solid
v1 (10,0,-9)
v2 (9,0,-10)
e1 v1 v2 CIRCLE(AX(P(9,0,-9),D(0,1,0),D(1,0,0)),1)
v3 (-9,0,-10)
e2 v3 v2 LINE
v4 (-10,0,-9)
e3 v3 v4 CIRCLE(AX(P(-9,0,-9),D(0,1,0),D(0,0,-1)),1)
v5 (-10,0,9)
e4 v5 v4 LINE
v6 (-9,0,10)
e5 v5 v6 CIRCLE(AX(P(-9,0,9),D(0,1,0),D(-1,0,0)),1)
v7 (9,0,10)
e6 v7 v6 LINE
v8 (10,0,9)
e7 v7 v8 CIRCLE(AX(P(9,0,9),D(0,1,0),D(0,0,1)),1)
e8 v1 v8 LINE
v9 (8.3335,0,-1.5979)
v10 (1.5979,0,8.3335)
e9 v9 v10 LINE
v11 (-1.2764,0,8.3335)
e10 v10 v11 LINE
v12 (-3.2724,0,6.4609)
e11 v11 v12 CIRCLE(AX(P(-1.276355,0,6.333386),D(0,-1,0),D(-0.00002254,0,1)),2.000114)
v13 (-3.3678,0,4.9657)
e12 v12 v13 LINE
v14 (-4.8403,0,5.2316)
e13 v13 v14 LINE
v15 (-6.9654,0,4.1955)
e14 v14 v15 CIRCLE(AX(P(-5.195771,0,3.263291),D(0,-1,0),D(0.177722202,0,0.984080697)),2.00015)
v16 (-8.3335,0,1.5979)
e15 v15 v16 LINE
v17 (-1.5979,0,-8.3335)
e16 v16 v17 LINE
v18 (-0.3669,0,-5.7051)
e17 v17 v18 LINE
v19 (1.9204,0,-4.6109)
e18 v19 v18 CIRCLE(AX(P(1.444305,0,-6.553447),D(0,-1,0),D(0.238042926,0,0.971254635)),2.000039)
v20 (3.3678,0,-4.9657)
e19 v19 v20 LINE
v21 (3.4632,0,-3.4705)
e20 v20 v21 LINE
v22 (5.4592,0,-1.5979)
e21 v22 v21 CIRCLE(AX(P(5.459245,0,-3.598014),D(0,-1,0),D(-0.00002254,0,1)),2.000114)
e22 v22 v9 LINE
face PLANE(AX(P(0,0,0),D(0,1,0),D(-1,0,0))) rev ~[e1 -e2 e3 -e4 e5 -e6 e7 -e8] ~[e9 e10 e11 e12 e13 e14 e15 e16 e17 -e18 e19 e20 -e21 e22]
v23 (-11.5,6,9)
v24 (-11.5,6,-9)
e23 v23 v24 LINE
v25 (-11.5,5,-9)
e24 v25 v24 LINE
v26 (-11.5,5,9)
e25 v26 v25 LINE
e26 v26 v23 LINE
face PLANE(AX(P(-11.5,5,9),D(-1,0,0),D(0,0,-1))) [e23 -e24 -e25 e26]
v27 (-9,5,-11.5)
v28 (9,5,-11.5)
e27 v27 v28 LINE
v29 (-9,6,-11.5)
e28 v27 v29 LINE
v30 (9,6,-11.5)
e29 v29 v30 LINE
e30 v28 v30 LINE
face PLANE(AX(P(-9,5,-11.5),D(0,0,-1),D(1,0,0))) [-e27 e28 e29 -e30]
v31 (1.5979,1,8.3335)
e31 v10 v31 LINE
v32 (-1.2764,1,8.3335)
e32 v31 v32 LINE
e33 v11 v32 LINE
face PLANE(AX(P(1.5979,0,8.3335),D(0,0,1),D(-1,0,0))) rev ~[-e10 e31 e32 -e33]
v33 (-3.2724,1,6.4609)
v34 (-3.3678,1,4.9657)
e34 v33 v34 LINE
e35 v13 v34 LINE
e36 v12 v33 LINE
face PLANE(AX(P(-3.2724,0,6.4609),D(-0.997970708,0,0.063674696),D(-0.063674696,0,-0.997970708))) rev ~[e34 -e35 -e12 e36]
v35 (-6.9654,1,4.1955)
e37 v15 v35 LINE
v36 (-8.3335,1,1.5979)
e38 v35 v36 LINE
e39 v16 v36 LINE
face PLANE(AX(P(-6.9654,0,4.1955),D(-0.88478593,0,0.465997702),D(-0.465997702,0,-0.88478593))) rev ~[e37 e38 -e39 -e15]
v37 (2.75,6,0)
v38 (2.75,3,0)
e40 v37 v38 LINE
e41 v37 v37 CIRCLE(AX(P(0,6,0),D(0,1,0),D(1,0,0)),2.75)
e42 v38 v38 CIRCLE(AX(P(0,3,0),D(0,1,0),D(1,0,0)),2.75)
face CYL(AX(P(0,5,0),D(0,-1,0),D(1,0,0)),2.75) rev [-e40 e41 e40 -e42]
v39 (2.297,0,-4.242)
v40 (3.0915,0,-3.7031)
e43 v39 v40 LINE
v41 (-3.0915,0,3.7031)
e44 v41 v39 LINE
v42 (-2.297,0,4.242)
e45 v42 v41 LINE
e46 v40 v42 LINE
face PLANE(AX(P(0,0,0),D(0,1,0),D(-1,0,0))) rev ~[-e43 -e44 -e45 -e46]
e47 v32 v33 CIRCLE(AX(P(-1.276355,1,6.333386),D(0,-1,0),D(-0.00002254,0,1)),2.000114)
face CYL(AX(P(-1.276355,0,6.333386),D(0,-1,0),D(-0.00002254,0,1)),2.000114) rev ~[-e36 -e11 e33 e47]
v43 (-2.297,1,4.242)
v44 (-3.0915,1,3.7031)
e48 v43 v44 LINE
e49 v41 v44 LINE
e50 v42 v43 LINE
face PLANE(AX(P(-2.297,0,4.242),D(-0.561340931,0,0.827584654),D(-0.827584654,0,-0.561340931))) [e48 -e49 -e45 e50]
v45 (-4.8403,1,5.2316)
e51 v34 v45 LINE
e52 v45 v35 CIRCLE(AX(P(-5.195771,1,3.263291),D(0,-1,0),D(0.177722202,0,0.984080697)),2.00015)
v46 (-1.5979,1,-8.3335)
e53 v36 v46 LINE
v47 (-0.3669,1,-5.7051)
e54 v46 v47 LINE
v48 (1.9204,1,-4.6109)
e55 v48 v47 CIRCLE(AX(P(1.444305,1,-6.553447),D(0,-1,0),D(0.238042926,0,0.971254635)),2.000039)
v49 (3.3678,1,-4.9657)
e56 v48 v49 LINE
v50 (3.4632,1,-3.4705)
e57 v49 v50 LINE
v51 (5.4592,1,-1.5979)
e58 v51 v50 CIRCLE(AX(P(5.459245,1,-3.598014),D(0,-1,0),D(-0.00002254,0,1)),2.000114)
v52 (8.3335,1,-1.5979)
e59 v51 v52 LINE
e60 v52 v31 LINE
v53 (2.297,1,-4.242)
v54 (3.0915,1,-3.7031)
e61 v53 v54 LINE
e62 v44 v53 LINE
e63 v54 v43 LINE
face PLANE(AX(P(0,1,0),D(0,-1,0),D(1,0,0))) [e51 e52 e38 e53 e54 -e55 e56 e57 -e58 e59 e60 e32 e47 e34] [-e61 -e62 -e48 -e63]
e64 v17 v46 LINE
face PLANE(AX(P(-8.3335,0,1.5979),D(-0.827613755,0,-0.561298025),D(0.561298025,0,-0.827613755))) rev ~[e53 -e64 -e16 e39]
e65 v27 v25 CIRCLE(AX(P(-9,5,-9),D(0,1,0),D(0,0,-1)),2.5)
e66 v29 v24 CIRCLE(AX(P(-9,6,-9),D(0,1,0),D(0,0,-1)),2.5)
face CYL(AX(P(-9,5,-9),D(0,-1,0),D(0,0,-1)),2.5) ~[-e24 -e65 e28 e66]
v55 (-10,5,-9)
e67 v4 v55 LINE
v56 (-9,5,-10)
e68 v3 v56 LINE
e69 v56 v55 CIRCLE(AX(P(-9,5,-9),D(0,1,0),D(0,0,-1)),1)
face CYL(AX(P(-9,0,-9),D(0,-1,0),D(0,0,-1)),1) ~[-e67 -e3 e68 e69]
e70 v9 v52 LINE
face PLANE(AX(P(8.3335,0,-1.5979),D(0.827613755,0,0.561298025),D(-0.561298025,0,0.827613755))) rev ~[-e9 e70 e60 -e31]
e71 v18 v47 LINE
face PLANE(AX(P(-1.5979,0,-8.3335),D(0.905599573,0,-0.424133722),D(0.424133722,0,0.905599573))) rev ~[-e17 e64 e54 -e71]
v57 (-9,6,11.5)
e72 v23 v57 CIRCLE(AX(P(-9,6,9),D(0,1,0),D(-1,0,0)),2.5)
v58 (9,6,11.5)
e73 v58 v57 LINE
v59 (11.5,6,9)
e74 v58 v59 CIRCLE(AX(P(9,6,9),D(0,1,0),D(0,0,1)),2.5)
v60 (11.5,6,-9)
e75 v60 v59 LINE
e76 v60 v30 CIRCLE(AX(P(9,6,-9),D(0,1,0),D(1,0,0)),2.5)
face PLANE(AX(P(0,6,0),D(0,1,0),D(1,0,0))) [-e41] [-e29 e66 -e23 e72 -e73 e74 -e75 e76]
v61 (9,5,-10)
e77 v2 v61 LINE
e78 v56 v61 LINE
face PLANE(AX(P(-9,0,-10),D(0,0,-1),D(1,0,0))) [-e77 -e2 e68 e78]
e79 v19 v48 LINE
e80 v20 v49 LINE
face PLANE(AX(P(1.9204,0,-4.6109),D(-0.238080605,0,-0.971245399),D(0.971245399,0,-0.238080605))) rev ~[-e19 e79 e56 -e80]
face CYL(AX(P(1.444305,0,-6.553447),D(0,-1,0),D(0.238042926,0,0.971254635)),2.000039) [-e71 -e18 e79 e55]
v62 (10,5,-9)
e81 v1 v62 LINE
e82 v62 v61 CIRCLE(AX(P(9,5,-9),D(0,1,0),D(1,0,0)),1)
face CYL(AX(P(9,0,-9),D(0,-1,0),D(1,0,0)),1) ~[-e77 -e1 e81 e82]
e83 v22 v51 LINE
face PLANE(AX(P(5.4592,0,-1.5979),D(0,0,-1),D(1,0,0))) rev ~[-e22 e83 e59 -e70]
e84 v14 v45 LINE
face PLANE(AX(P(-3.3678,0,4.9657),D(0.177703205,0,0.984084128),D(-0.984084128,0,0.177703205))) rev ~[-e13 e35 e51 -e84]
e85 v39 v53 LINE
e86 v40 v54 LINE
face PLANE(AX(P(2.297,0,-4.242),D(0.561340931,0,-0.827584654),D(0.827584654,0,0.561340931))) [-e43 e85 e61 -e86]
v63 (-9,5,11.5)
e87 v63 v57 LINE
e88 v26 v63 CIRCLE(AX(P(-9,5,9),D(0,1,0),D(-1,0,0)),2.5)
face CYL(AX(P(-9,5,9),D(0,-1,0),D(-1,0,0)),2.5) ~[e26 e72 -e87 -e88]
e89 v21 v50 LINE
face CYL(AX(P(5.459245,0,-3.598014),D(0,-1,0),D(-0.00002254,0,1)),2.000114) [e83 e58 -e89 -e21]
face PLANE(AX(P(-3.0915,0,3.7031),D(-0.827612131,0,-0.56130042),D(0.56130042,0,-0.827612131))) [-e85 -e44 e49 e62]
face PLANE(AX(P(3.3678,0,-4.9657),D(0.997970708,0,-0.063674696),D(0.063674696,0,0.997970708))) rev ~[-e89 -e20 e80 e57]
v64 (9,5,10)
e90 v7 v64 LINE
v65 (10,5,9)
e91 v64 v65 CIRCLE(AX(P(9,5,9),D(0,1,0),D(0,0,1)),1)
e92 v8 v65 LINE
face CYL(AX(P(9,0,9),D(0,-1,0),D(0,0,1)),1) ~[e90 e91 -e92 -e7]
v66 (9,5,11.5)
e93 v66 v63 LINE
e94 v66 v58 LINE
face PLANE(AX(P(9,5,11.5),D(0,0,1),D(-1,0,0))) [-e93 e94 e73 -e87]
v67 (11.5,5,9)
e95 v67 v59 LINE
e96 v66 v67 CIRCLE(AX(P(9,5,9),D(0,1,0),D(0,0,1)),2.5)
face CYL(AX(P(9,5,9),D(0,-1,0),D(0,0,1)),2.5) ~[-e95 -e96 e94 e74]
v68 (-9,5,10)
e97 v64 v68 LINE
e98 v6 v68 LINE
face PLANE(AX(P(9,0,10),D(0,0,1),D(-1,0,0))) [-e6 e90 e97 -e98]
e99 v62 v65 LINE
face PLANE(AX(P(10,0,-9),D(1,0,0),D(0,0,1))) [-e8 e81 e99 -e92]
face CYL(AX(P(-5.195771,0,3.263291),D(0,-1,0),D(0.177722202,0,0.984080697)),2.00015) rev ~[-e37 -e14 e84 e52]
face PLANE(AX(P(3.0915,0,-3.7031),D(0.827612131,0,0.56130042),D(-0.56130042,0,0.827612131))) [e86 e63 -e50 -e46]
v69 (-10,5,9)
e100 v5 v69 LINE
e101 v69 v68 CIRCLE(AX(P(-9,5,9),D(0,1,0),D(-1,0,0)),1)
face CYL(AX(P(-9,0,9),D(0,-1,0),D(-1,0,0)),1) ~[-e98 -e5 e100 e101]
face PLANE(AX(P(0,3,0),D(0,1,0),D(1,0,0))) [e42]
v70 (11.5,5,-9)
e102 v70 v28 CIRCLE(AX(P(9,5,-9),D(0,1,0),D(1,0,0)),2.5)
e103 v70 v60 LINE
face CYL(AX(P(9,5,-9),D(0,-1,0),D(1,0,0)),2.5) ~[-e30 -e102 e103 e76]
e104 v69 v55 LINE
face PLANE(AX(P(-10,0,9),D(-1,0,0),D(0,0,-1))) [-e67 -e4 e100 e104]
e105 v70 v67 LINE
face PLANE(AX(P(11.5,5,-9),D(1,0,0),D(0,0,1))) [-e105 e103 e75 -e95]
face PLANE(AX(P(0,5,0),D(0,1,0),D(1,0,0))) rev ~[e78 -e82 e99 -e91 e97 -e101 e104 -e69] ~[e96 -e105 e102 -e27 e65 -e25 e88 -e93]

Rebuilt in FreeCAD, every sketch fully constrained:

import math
import FreeCAD as App
import Part
import Sketcher
Q = App.Units.Quantity

doc = App.newDocument("Part")
body = doc.addObject("PartDesign::Body", "Body")

sketch1 = body.newObject("Sketcher::SketchObject", "Sketch")
sketch1.AttachmentSupport = (doc.getObject("XZ_Plane"), [""])
sketch1.MapMode = "FlatFace"
sketch1.addGeometry(Part.LineSegment(App.Vector(9, -10, 0), App.Vector(-9, -10, 0)), False)
sketch1.addGeometry(Part.ArcOfCircle(Part.Circle(App.Vector(-9, -9, 0), App.Vector(0, 0, 1), 1), math.radians(180), math.radians(270)), False)
sketch1.addGeometry(Part.LineSegment(App.Vector(-10, -9, 0), App.Vector(-10, 9, 0)), False)
sketch1.addGeometry(Part.ArcOfCircle(Part.Circle(App.Vector(-9, 9, 0), App.Vector(0, 0, 1), 1), math.radians(90), math.radians(180)), False)
sketch1.addGeometry(Part.LineSegment(App.Vector(-9, 10, 0), App.Vector(9, 10, 0)), False)
sketch1.addGeometry(Part.ArcOfCircle(Part.Circle(App.Vector(9, 9, 0), App.Vector(0, 0, 1), 1), math.radians(0), math.radians(90)), False)
sketch1.addGeometry(Part.LineSegment(App.Vector(10, 9, 0), App.Vector(10, -9, 0)), False)
sketch1.addGeometry(Part.ArcOfCircle(Part.Circle(App.Vector(9, -9, 0), App.Vector(0, 0, 1), 1), math.radians(-90), math.radians(0)), False)
sketch1.addConstraint(Sketcher.Constraint("Tangent", 0, 2, 1, 2))
sketch1.addConstraint(Sketcher.Constraint("Tangent", 1, 1, 2, 1))
sketch1.addConstraint(Sketcher.Constraint("Tangent", 2, 2, 3, 2))
sketch1.addConstraint(Sketcher.Constraint("Tangent", 3, 1, 4, 1))
sketch1.addConstraint(Sketcher.Constraint("Tangent", 4, 2, 5, 2))
sketch1.addConstraint(Sketcher.Constraint("Tangent", 5, 1, 6, 1))
sketch1.addConstraint(Sketcher.Constraint("Tangent", 6, 2, 7, 2))
sketch1.addConstraint(Sketcher.Constraint("Tangent", 7, 1, 0, 1))
sketch1.addConstraint(Sketcher.Constraint("Horizontal", 0))
sketch1.addConstraint(Sketcher.Constraint("Vertical", 2))
sketch1.addConstraint(Sketcher.Constraint("Horizontal", 4))
sketch1.addConstraint(Sketcher.Constraint("Vertical", 6))
sketch1.addConstraint(Sketcher.Constraint("Equal", 1, 3))
sketch1.addConstraint(Sketcher.Constraint("Equal", 3, 5))
sketch1.addConstraint(Sketcher.Constraint("Equal", 5, 7))
sketch1.addConstraint(Sketcher.Constraint("Symmetric", 1, 3, 5, 3, -1, 1))
sketch1.addConstraint(Sketcher.Constraint("Equal", 4, 2))
sketch1.addConstraint(Sketcher.Constraint("Radius", 1, Q("1 mm")))
sketch1.addConstraint(Sketcher.Constraint("DistanceX", 0, 2, 0, 1, Q("18 mm")))
pad1 = body.newObject("PartDesign::Pad", "Pad")
pad1.Profile = sketch1
pad1.Length = 5
pad1.Reversed = True

sketch2 = body.newObject("Sketcher::SketchObject", "Sketch001")
sketch2.AttachmentSupport = (doc.getObject("XZ_Plane"), [""])
sketch2.MapMode = "FlatFace"
sketch2.AttachmentOffset = App.Placement(App.Vector(0, 0, -5), App.Rotation())
sketch2.addGeometry(Part.LineSegment(App.Vector(-9, 11.5, 0), App.Vector(9, 11.5, 0)), False)
sketch2.addGeometry(Part.ArcOfCircle(Part.Circle(App.Vector(9, 9, 0), App.Vector(0, 0, 1), 2.5), math.radians(0), math.radians(90)), False)
sketch2.addGeometry(Part.LineSegment(App.Vector(11.5, 9, 0), App.Vector(11.5, -9, 0)), False)
sketch2.addGeometry(Part.ArcOfCircle(Part.Circle(App.Vector(9, -9, 0), App.Vector(0, 0, 1), 2.5), math.radians(-90), math.radians(0)), False)
sketch2.addGeometry(Part.LineSegment(App.Vector(9, -11.5, 0), App.Vector(-9, -11.5, 0)), False)
sketch2.addGeometry(Part.ArcOfCircle(Part.Circle(App.Vector(-9, -9, 0), App.Vector(0, 0, 1), 2.5), math.radians(180), math.radians(270)), False)
sketch2.addGeometry(Part.LineSegment(App.Vector(-11.5, -9, 0), App.Vector(-11.5, 9, 0)), False)
sketch2.addGeometry(Part.ArcOfCircle(Part.Circle(App.Vector(-9, 9, 0), App.Vector(0, 0, 1), 2.5), math.radians(90), math.radians(180)), False)
sketch2.addGeometry(Part.Circle(App.Vector(0, 0, 0), App.Vector(0, 0, 1), 2.8), False)
sketch2.addConstraint(Sketcher.Constraint("Tangent", 0, 2, 1, 2))
sketch2.addConstraint(Sketcher.Constraint("Tangent", 1, 1, 2, 1))
sketch2.addConstraint(Sketcher.Constraint("Tangent", 2, 2, 3, 2))
sketch2.addConstraint(Sketcher.Constraint("Tangent", 3, 1, 4, 1))
sketch2.addConstraint(Sketcher.Constraint("Tangent", 4, 2, 5, 2))
sketch2.addConstraint(Sketcher.Constraint("Tangent", 5, 1, 6, 1))
sketch2.addConstraint(Sketcher.Constraint("Tangent", 6, 2, 7, 2))
sketch2.addConstraint(Sketcher.Constraint("Tangent", 7, 1, 0, 1))
sketch2.addConstraint(Sketcher.Constraint("Horizontal", 0))
sketch2.addConstraint(Sketcher.Constraint("Vertical", 2))
sketch2.addConstraint(Sketcher.Constraint("Horizontal", 4))
sketch2.addConstraint(Sketcher.Constraint("Vertical", 6))
sketch2.addConstraint(Sketcher.Constraint("Coincident", 8, 3, -1, 1))
sketch2.addConstraint(Sketcher.Constraint("Equal", 1, 3))
sketch2.addConstraint(Sketcher.Constraint("Equal", 3, 5))
sketch2.addConstraint(Sketcher.Constraint("Equal", 5, 7))
sketch2.addConstraint(Sketcher.Constraint("Symmetric", 1, 3, 5, 3, -1, 1))
sketch2.addConstraint(Sketcher.Constraint("Equal", 4, 2))
sketch2.addConstraint(Sketcher.Constraint("Diameter", 8, Q("5.5 mm")))
sketch2.addConstraint(Sketcher.Constraint("Radius", 1, Q("2.5 mm")))
sketch2.addConstraint(Sketcher.Constraint("DistanceX", 0, 1, 0, 2, Q("18 mm")))
pad2 = body.newObject("PartDesign::Pad", "Pad001")
pad2.Profile = sketch2
pad2.Length = 1
pad2.Reversed = True

sketch3 = body.newObject("Sketcher::SketchObject", "Sketch002")
sketch3.AttachmentSupport = (doc.getObject("XZ_Plane"), [""])
sketch3.MapMode = "FlatFace"
sketch3.addGeometry(Part.LineSegment(App.Vector(-7, 4.2, 0), App.Vector(-8.3, 1.6, 0)), False)
sketch3.addGeometry(Part.LineSegment(App.Vector(-8.3, 1.6, 0), App.Vector(-1.6, -8.3, 0)), False)
sketch3.addGeometry(Part.LineSegment(App.Vector(-1.6, -8.3, 0), App.Vector(-0.4, -5.7, 0)), False)
sketch3.addGeometry(Part.ArcOfCircle(Part.Circle(App.Vector(1.4, -6.6, 0), App.Vector(0, 0, 1), 2), math.radians(76), math.radians(155)), False)
sketch3.addGeometry(Part.LineSegment(App.Vector(1.9, -4.6, 0), App.Vector(3.4, -5, 0)), False)
sketch3.addGeometry(Part.LineSegment(App.Vector(3.4, -5, 0), App.Vector(3.5, -3.5, 0)), False)
sketch3.addGeometry(Part.ArcOfCircle(Part.Circle(App.Vector(5.5, -3.6, 0), App.Vector(0, 0, 1), 2), math.radians(90), math.radians(176)), False)
sketch3.addGeometry(Part.LineSegment(App.Vector(5.5, -1.6, 0), App.Vector(8.3, -1.6, 0)), False)
sketch3.addGeometry(Part.LineSegment(App.Vector(8.3, -1.6, 0), App.Vector(1.6, 8.3, 0)), False)
sketch3.addGeometry(Part.LineSegment(App.Vector(1.6, 8.3, 0), App.Vector(-1.3, 8.3, 0)), False)
sketch3.addGeometry(Part.ArcOfCircle(Part.Circle(App.Vector(-1.3, 6.3, 0), App.Vector(0, 0, 1), 2), math.radians(90), math.radians(176)), False)
sketch3.addGeometry(Part.LineSegment(App.Vector(-3.3, 6.5, 0), App.Vector(-3.4, 5, 0)), False)
sketch3.addGeometry(Part.LineSegment(App.Vector(-3.4, 5, 0), App.Vector(-4.8, 5.2, 0)), False)
sketch3.addGeometry(Part.ArcOfCircle(Part.Circle(App.Vector(-5.2, 3.3, 0), App.Vector(0, 0, 1), 2), math.radians(80), math.radians(152)), False)
sketch3.addGeometry(Part.LineSegment(App.Vector(2.3, -4.2, 0), App.Vector(-3.1, 3.7, 0)), False)
sketch3.addGeometry(Part.LineSegment(App.Vector(-3.1, 3.7, 0), App.Vector(-2.3, 4.2, 0)), False)
sketch3.addGeometry(Part.LineSegment(App.Vector(-2.3, 4.2, 0), App.Vector(3.1, -3.7, 0)), False)
sketch3.addGeometry(Part.LineSegment(App.Vector(3.1, -3.7, 0), App.Vector(2.3, -4.2, 0)), False)
sketch3.addConstraint(Sketcher.Constraint("Coincident", 0, 2, 1, 1))
sketch3.addConstraint(Sketcher.Constraint("Coincident", 1, 2, 2, 1))
sketch3.addConstraint(Sketcher.Constraint("Tangent", 2, 2, 3, 2))
sketch3.addConstraint(Sketcher.Constraint("Tangent", 3, 1, 4, 1))
sketch3.addConstraint(Sketcher.Constraint("Coincident", 4, 2, 5, 1))
sketch3.addConstraint(Sketcher.Constraint("Tangent", 5, 2, 6, 2))
sketch3.addConstraint(Sketcher.Constraint("Tangent", 6, 1, 7, 1))
sketch3.addConstraint(Sketcher.Constraint("Coincident", 7, 2, 8, 1))
sketch3.addConstraint(Sketcher.Constraint("Coincident", 8, 2, 9, 1))
sketch3.addConstraint(Sketcher.Constraint("Tangent", 9, 2, 10, 1))
sketch3.addConstraint(Sketcher.Constraint("Tangent", 10, 2, 11, 1))
sketch3.addConstraint(Sketcher.Constraint("Coincident", 11, 2, 12, 1))
sketch3.addConstraint(Sketcher.Constraint("Tangent", 12, 2, 13, 1))
sketch3.addConstraint(Sketcher.Constraint("Tangent", 13, 2, 0, 1))
sketch3.addConstraint(Sketcher.Constraint("Coincident", 14, 2, 15, 1))
sketch3.addConstraint(Sketcher.Constraint("Coincident", 15, 2, 16, 1))
sketch3.addConstraint(Sketcher.Constraint("Coincident", 16, 2, 17, 1))
sketch3.addConstraint(Sketcher.Constraint("Coincident", 17, 2, 14, 1))
sketch3.addConstraint(Sketcher.Constraint("Horizontal", 7))
sketch3.addConstraint(Sketcher.Constraint("Horizontal", 9))
sketch3.addConstraint(Sketcher.Constraint("Equal", 3, 6))
sketch3.addConstraint(Sketcher.Constraint("Equal", 6, 10))
sketch3.addConstraint(Sketcher.Constraint("Equal", 10, 13))
sketch3.addConstraint(Sketcher.Constraint("Symmetric", 0, 2, 7, 2, -1, 1))
sketch3.addConstraint(Sketcher.Constraint("Symmetric", 1, 2, 8, 2, -1, 1))
sketch3.addConstraint(Sketcher.Constraint("Symmetric", 4, 2, 11, 2, -1, 1))
sketch3.addConstraint(Sketcher.Constraint("Symmetric", 14, 2, 16, 2, -1, 1))
sketch3.addConstraint(Sketcher.Constraint("Symmetric", 15, 2, 17, 2, -1, 1))
sketch3.addConstraint(Sketcher.Constraint("Parallel", 5, 11))
sketch3.addConstraint(Sketcher.Constraint("Parallel", 8, 14))
sketch3.addConstraint(Sketcher.Constraint("Perpendicular", 14, 15))
sketch3.addConstraint(Sketcher.Constraint("Equal", 7, 9))
sketch3.addConstraint(Sketcher.Constraint("Equal", 5, 11))
sketch3.addConstraint(Sketcher.Constraint("Radius", 3, Q("2 mm")))
sketch3.addConstraint(Sketcher.Constraint("Distance", 1, Q("12 mm")))
sketch3.addConstraint(Sketcher.Constraint("Distance", 14, Q("9.6 mm")))
sketch3.addConstraint(Sketcher.Constraint("Distance", 15, Q("0.96 mm")))
sketch3.addConstraint(Sketcher.Constraint("Angle", 5, Q("86.3492 deg")))
sketch3.addConstraint(Sketcher.Constraint("DistanceY", 13, 3, 10, 3, Q("3.07 mm")))
sketch3.addConstraint(Sketcher.Constraint("DistanceX", 13, 3, 3, 3, Q("6.64 mm")))
sketch3.addConstraint(Sketcher.Constraint("DistanceY", 1, 2, 3, 3, Q("1.78 mm")))
sketch3.addConstraint(Sketcher.Constraint("DistanceX", 2, 2, 5, 2, Q("3.83 mm")))
sketch3.addConstraint(Sketcher.Constraint("DistanceX", 7, 1, 7, 2, Q("2.8743 mm")))
sketch3.addConstraint(Sketcher.Constraint("DistanceY", 6, 3, -1, 1, Q("3.598 mm")))
sketch3.addConstraint(Sketcher.Constraint("DistanceX", 1, 2, -1, 1, Q("1.598 mm")))
pocket1 = body.newObject("PartDesign::Pocket", "Pocket")
pocket1.Profile = sketch3
pocket1.Length = 1

sketch4 = body.newObject("Sketcher::SketchObject", "Sketch003")
sketch4.AttachmentSupport = (doc.getObject("XZ_Plane"), [""])
sketch4.MapMode = "FlatFace"
sketch4.AttachmentOffset = App.Placement(App.Vector(0, 0, -5), App.Rotation())
sketch4.addGeometry(Part.Circle(App.Vector(0, 0, 0), App.Vector(0, 0, 1), 2.8), False)
sketch4.addConstraint(Sketcher.Constraint("Coincident", 0, 3, -1, 1))
sketch4.addConstraint(Sketcher.Constraint("Diameter", 0, Q("5.5 mm")))
pocket2 = body.newObject("PartDesign::Pocket", "Pocket001")
pocket2.Profile = sketch4
pocket2.Length = 2
pocket2.Reversed = True

doc.recompute()
